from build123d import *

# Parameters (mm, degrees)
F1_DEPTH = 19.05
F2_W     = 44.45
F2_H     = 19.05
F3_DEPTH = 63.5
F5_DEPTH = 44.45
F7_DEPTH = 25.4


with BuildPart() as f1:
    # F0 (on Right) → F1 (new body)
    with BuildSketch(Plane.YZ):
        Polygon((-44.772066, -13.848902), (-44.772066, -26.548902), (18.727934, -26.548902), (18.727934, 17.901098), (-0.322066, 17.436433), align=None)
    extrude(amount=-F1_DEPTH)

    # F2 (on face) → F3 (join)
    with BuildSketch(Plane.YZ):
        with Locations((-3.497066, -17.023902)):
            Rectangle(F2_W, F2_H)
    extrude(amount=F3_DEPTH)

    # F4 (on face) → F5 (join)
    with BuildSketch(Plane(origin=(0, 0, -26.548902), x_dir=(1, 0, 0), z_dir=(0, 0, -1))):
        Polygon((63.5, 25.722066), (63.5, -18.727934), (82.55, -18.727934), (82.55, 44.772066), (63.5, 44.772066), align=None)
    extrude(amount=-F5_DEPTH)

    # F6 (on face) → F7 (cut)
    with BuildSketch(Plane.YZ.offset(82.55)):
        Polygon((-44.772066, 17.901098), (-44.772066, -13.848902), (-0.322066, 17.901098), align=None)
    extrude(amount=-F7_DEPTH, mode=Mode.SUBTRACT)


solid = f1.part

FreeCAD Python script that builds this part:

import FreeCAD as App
import Part
import Sketcher
Q = App.Units.Quantity


def add_polygon(sketch, points):
    """Adds a closed chain of lines whose ends are joined by coincident constraints."""
    first, n = sketch.GeometryCount, len(points)
    for a, b in zip(points, points[1:] + points[:1]):
        sketch.addGeometry(Part.LineSegment(App.Vector(*a, 0), App.Vector(*b, 0)), False)
    for i in range(n):
        sketch.addConstraint(Sketcher.Constraint("Coincident", first + i, 2, first + (i + 1) % n, 1))

doc = App.newDocument("Part")
body = doc.addObject("PartDesign::Body", "Body")

# Sketch on YZ plane
sketch1 = doc.addObject("Sketcher::SketchObject", "Sketch")
body.addObject(sketch1)
sketch1.AttachmentSupport = (doc.YZ_Plane, [""])
sketch1.MapMode = "FlatFace"
add_polygon(sketch1, [(-45, -14), (-45, -27), (19, -27), (19, 18), (0, 17)])  # lines 0-4
sketch1.addConstraint([
    Sketcher.Constraint("Vertical", 0),
    Sketcher.Constraint("Horizontal", 1),
    Sketcher.Constraint("Vertical", 2),
    Sketcher.Constraint("DistanceX", 1, 1, 1, 2, Q("2.5 in")),
    Sketcher.Constraint("DistanceY", 0, 2, 0, 1, Q("0.5 in")),
    Sketcher.Constraint("DistanceY", 2, 1, 2, 2, Q("1.75 in")),
    Sketcher.Constraint("Distance", 4, Q("2.14 in")),
    Sketcher.Constraint("DistanceX", 3, 2, 2, 2, Q("0.75 in")),
    Sketcher.Constraint("DistanceY", 0, 2, -1, 1, 26.548902),
    Sketcher.Constraint("DistanceX", 0, 2, -1, 1, 44.772066),
])
pad1 = doc.addObject("PartDesign::Pad", "Pad")
body.addObject(pad1)
pad1.Profile = sketch1
pad1.Length = Q("0.75 in")
pad1.Reversed = True

# Sketch on YZ plane
sketch2 = doc.addObject("Sketcher::SketchObject", "Sketch001")
body.addObject(sketch2)
sketch2.AttachmentSupport = (doc.YZ_Plane, [""])
sketch2.MapMode = "FlatFace"
add_polygon(sketch2, [(-26, -7), (-26, -27), (19, -27), (19, -7)])  # lines 0-3
sketch2.addConstraint([
    Sketcher.Constraint("Vertical", 0),
    Sketcher.Constraint("Horizontal", 1),
    Sketcher.Constraint("Vertical", 2),
    Sketcher.Constraint("Horizontal", 3),
    Sketcher.Constraint("DistanceX", 1, 1, 1, 2, Q("1.75 in")),
    Sketcher.Constraint("DistanceY", 0, 2, 0, 1, Q("0.75 in")),
    Sketcher.Constraint("DistanceY", 0, 2, -1, 1, 26.548902),
    Sketcher.Constraint("DistanceX", 0, 2, -1, 1, 25.722066),
])
pad2 = doc.addObject("PartDesign::Pad", "Pad001")
body.addObject(pad2)
pad2.Profile = sketch2
pad2.Length = Q("2.5 in")

# Sketch on XY plane
sketch3 = doc.addObject("Sketcher::SketchObject", "Sketch002")
body.addObject(sketch3)
sketch3.AttachmentSupport = (doc.XY_Plane, [""])
sketch3.MapMode = "FlatFace"
sketch3.AttachmentOffset = App.Placement(App.Vector(0, 0, -26.548902), App.Rotation())
add_polygon(sketch3, [(64, 19), (83, 19), (83, -45), (64, -45)])  # lines 0-3
sketch3.addConstraint([
    Sketcher.Constraint("Horizontal", 0),
    Sketcher.Constraint("Vertical", 1),
    Sketcher.Constraint("Horizontal", 2),
    Sketcher.Constraint("Vertical", 3),
    Sketcher.Constraint("DistanceY", 1, 2, 1, 1, Q("2.5 in")),
    Sketcher.Constraint("DistanceX", 0, 1, 0, 2, Q("0.75 in")),
    Sketcher.Constraint("DistanceX", -1, 1, 2, 2, Q("2.5 in")),
    Sketcher.Constraint("DistanceY", -1, 1, 0, 2, 18.727934),
])
pad3 = doc.addObject("PartDesign::Pad", "Pad002")
body.addObject(pad3)
pad3.Profile = sketch3
pad3.Length = Q("1.75 in")

# Sketch on YZ plane
sketch4 = doc.addObject("Sketcher::SketchObject", "Sketch003")
body.addObject(sketch4)
sketch4.AttachmentSupport = (doc.YZ_Plane, [""])
sketch4.MapMode = "FlatFace"
sketch4.AttachmentOffset = App.Placement(App.Vector(0, 0, 3.25 * 25.4), App.Rotation())
add_polygon(sketch4, [(-45, 18), (-45, -14), (0, 18)])  # lines 0-2
sketch4.addConstraint([
    Sketcher.Constraint("Vertical", 0),
    Sketcher.Constraint("Horizontal", 2),
    Sketcher.Constraint("DistanceX", 2, 2, 2, 1, Q("1.75 in")),
    Sketcher.Constraint("DistanceY", 0, 2, 0, 1, Q("1.25 in")),
    Sketcher.Constraint("DistanceY", -1, 1, 1, 2, 17.901098),
    Sketcher.Constraint("DistanceX", 0, 2, -1, 1, 44.772066),
])
pocket1 = doc.addObject("PartDesign::Pocket", "Pocket")
body.addObject(pocket1)
pocket1.Profile = sketch4
pocket1.Length = Q("1 in")

doc.recompute()
